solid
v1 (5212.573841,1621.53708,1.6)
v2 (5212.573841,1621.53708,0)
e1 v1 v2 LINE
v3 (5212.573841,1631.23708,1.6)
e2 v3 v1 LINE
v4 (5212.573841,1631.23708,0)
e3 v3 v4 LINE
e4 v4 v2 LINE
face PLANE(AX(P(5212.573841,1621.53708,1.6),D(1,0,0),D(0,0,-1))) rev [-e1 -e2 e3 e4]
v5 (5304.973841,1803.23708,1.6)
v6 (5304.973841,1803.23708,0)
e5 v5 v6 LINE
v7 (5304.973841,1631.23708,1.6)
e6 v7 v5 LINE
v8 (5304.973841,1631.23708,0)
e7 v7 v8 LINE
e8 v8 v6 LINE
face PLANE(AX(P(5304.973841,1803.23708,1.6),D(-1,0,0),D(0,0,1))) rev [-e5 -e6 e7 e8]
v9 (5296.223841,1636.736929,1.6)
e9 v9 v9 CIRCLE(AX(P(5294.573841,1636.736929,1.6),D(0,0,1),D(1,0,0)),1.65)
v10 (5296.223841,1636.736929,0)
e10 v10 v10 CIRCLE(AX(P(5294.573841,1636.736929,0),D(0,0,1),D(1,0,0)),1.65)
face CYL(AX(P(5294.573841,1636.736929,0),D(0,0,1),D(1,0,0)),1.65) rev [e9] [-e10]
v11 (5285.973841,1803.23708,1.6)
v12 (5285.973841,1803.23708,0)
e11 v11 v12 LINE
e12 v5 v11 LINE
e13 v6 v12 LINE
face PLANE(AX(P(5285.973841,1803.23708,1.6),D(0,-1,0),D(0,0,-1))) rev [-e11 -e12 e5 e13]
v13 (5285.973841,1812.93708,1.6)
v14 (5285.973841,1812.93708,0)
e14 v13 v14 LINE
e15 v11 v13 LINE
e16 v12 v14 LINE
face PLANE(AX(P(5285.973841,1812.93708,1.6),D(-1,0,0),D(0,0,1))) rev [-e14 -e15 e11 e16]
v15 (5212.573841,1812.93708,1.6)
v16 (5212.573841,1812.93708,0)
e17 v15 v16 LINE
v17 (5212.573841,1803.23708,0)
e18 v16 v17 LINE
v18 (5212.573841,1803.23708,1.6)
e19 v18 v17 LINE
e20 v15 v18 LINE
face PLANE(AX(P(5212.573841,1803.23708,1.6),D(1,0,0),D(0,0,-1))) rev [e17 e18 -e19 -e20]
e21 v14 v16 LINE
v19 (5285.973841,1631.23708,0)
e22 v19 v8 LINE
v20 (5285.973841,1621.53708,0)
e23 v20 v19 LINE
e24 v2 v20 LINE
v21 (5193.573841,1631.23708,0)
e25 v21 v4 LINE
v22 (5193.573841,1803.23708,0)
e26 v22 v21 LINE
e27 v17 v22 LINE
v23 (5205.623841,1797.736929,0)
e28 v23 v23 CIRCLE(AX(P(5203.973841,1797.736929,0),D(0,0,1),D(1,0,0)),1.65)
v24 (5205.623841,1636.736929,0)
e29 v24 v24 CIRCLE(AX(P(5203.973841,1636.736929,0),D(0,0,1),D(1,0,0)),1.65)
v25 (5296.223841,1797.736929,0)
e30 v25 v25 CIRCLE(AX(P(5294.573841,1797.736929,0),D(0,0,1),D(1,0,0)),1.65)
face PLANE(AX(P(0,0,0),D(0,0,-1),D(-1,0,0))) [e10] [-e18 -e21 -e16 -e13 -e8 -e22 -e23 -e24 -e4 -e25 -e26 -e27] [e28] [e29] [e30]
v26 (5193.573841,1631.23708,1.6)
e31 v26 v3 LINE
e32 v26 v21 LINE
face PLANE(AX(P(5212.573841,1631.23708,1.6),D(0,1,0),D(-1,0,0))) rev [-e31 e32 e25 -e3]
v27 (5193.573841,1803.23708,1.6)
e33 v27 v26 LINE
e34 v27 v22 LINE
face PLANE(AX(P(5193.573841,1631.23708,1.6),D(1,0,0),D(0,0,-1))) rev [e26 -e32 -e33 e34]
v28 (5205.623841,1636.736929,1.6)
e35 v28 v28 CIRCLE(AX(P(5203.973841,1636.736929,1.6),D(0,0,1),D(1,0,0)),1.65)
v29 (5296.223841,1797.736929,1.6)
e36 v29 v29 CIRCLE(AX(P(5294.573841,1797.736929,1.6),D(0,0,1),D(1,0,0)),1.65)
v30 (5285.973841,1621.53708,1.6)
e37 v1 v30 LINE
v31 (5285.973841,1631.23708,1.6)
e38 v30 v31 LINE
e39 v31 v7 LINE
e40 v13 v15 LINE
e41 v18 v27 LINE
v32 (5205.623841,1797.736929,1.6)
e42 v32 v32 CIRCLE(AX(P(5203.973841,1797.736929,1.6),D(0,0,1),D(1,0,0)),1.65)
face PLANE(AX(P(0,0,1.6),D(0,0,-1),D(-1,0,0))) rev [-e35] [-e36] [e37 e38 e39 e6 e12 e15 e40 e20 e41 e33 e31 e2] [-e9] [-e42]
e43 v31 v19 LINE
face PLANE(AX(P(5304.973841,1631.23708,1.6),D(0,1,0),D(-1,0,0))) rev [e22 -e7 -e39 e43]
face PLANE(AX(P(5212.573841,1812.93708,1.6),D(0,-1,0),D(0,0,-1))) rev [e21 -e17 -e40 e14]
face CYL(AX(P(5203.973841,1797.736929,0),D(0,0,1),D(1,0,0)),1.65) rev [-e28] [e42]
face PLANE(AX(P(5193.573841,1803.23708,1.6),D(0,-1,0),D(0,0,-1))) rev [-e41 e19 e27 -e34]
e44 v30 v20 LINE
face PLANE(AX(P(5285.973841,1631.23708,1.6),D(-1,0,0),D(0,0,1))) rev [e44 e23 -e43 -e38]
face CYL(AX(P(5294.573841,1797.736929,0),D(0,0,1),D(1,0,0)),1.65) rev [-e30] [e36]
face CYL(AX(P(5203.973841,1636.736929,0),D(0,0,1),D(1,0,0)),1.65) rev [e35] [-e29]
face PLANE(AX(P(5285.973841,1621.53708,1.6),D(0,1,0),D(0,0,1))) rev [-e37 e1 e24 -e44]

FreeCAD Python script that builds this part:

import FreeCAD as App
import Part
import Sketcher

V = App.Vector


def add_polygon(sketch, points):
    """Adds a closed chain of lines whose ends are joined by coincident constraints."""
    first, n = sketch.GeometryCount, len(points)
    for a, b in zip(points, points[1:] + points[:1]):
        sketch.addGeometry(Part.LineSegment(App.Vector(*a, 0), App.Vector(*b, 0)), False)
    for i in range(n):
        sketch.addConstraint(Sketcher.Constraint("Coincident", first + i, 2, first + (i + 1) % n, 1))

doc = App.newDocument("Part")
body = doc.addObject("PartDesign::Body", "Body")

# Sketch on XY plane
sketch1 = body.newObject("Sketcher::SketchObject", "Sketch")
sketch1.AttachmentSupport = (doc.getObject("XY_Plane"), [""])
sketch1.MapMode = "FlatFace"
add_polygon(sketch1, [(5213, 1803), (5194, 1803), (5194, 1631), (5213, 1631), (5213, 1622), (5286, 1622), (5286, 1631), (5305, 1631), (5305, 1803), (5286, 1803), (5286, 1813), (5213, 1813)])  # lines 0-11
sketch1.addConstraint([
    Sketcher.Constraint("Horizontal", 0),
    Sketcher.Constraint("Vertical", 1),
    Sketcher.Constraint("Horizontal", 2),
    Sketcher.Constraint("Vertical", 3),
    Sketcher.Constraint("Horizontal", 4),
    Sketcher.Constraint("Vertical", 5),
    Sketcher.Constraint("Horizontal", 6),
    Sketcher.Constraint("Vertical", 7),
    Sketcher.Constraint("Horizontal", 8),
    Sketcher.Constraint("Vertical", 9),
    Sketcher.Constraint("Horizontal", 10),
    Sketcher.Constraint("Vertical", 11),
    Sketcher.Constraint("Horizontal", 2, 2, 5, 2),
    Sketcher.Constraint("Horizontal", 0, 2, 7, 2),
    Sketcher.Constraint("Vertical", 5, 2, 8, 2),
    Sketcher.Constraint("Vertical", 3, 2, 10, 2),
    Sketcher.Constraint("Equal", 2, 6),
    Sketcher.Constraint("Equal", 5, 9),
    Sketcher.Constraint("DistanceX", 0, 2, 0, 1, 19.0),
    Sketcher.Constraint("DistanceY", 1, 2, 1, 1, 172.0),
    Sketcher.Constraint("DistanceX", 4, 1, 4, 2, 73.4),
    Sketcher.Constraint("DistanceY", 3, 2, 3, 1, 9.7),
    Sketcher.Constraint("DistanceX", -1, 1, 0, 2, 5193.573841),
    Sketcher.Constraint("DistanceY", -1, 1, 0, 2, 1803.23708),
])
pad1 = body.newObject("PartDesign::Pad", "Pad")
pad1.Profile = sketch1
pad1.Length = 1.6

# Sketch on XY plane
sketch2 = body.newObject("Sketcher::SketchObject", "Sketch001")
sketch2.AttachmentSupport = (doc.getObject("XY_Plane"), [""])
sketch2.MapMode = "FlatFace"
sketch2.AttachmentOffset = App.Placement(V(0, 0, 1.6), App.Rotation())
sketch2.addGeometry([
    Part.Circle(V(5204, 1797.7, 0), V(0, 0, 1), 1.6),
    Part.Circle(V(5294.6, 1797.7, 0), V(0, 0, 1), 1.6),
    Part.Circle(V(5294.6, 1636.7, 0), V(0, 0, 1), 1.6),
    Part.Circle(V(5204, 1636.7, 0), V(0, 0, 1), 1.6),
], False)
sketch2.addConstraint([
    Sketcher.Constraint("Equal", 0, 1),
    Sketcher.Constraint("Equal", 1, 2),
    Sketcher.Constraint("Equal", 2, 3),
    Sketcher.Constraint("Horizontal", 0, 3, 1, 3),
    Sketcher.Constraint("Horizontal", 2, 3, 3, 3),
    Sketcher.Constraint("Vertical", 1, 3, 2, 3),
    Sketcher.Constraint("Vertical", 0, 3, 3, 3),
    Sketcher.Constraint("Diameter", 0, 3.3),
    Sketcher.Constraint("DistanceY", 2, 3, 1, 3, 161.0),
    Sketcher.Constraint("DistanceX", 0, 3, 1, 3, 90.6),
    Sketcher.Constraint("DistanceX", -1, 1, 0, 3, 5203.973841),
    Sketcher.Constraint("DistanceY", -1, 1, 0, 3, 1797.736929),
])
pocket1 = body.newObject("PartDesign::Pocket", "Pocket")
pocket1.Profile = sketch2
pocket1.Length = 1.6

doc.recompute()
